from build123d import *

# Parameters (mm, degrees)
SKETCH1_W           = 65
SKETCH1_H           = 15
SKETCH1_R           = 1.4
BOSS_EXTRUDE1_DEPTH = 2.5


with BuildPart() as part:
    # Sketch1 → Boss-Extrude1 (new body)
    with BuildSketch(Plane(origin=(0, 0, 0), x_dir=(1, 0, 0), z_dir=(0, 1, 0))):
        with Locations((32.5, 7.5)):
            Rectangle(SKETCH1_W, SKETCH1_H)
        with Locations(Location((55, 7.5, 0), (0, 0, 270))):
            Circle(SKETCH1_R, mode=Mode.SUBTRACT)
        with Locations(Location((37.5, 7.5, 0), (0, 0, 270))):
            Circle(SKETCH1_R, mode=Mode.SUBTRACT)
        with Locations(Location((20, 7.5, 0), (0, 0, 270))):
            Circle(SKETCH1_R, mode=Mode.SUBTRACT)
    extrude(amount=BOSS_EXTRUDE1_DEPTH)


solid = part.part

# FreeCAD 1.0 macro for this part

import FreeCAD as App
import Part
import Sketcher
Q = App.Units.Quantity

doc = App.newDocument("Part")
body = doc.addObject("PartDesign::Body", "Body")

sketch1 = body.newObject("Sketcher::SketchObject", "Sketch")
sketch1.AttachmentSupport = (doc.getObject("XZ_Plane"), [""])
sketch1.MapMode = "FlatFace"
sketch1.addGeometry([
    Part.LineSegment(App.Vector(0, -15, 0), App.Vector(0, 0, 0)),
    Part.LineSegment(App.Vector(0, 0, 0), App.Vector(65, 0, 0)),
    Part.LineSegment(App.Vector(65, 0, 0), App.Vector(65, -15, 0)),
    Part.LineSegment(App.Vector(65, -15, 0), App.Vector(0, -15, 0)),
    Part.Circle(App.Vector(20, -7.5, 0), App.Vector(0, 0, 1), 1.4),
    Part.Circle(App.Vector(37.5, -7.5, 0), App.Vector(0, 0, 1), 1.4),
    Part.Circle(App.Vector(55, -7.5, 0), App.Vector(0, 0, 1), 1.4),
], False)
sketch1.addConstraint([
    Sketcher.Constraint("Coincident", 0, 2, 1, 1),
    Sketcher.Constraint("Coincident", 1, 2, 2, 1),
    Sketcher.Constraint("Coincident", 2, 2, 3, 1),
    Sketcher.Constraint("Coincident", 3, 2, 0, 1),
    Sketcher.Constraint("Vertical", 0),
    Sketcher.Constraint("Horizontal", 1),
    Sketcher.Constraint("Vertical", 2),
    Sketcher.Constraint("Horizontal", 3),
    Sketcher.Constraint("Coincident", 0, 2, -1, 1),
    Sketcher.Constraint("Equal", 4, 5),
    Sketcher.Constraint("Equal", 5, 6),
    Sketcher.Constraint("Horizontal", 4, 3, 5, 3),
    Sketcher.Constraint("Horizontal", 5, 3, 6, 3),
    Sketcher.Constraint("Diameter", 4, Q("2.8 mm")),
    Sketcher.Constraint("DistanceX", 1, 1, 1, 2, Q("65 mm")),
    Sketcher.Constraint("DistanceY", 0, 1, 0, 2, Q("15 mm")),
    Sketcher.Constraint("DistanceX", -1, 1, 4, 3, Q("20 mm")),
    Sketcher.Constraint("DistanceX", -1, 1, 6, 3, Q("55 mm")),
    Sketcher.Constraint("DistanceY", 4, 3, -1, 1, Q("7.5 mm")),
    Sketcher.Constraint("DistanceX", -1, 1, 5, 3, Q("37.5 mm")),
])
pad1 = body.newObject("PartDesign::Pad", "Pad")
pad1.Profile = sketch1
pad1.Length = 2.5
pad1.Reversed = True

doc.recompute()
